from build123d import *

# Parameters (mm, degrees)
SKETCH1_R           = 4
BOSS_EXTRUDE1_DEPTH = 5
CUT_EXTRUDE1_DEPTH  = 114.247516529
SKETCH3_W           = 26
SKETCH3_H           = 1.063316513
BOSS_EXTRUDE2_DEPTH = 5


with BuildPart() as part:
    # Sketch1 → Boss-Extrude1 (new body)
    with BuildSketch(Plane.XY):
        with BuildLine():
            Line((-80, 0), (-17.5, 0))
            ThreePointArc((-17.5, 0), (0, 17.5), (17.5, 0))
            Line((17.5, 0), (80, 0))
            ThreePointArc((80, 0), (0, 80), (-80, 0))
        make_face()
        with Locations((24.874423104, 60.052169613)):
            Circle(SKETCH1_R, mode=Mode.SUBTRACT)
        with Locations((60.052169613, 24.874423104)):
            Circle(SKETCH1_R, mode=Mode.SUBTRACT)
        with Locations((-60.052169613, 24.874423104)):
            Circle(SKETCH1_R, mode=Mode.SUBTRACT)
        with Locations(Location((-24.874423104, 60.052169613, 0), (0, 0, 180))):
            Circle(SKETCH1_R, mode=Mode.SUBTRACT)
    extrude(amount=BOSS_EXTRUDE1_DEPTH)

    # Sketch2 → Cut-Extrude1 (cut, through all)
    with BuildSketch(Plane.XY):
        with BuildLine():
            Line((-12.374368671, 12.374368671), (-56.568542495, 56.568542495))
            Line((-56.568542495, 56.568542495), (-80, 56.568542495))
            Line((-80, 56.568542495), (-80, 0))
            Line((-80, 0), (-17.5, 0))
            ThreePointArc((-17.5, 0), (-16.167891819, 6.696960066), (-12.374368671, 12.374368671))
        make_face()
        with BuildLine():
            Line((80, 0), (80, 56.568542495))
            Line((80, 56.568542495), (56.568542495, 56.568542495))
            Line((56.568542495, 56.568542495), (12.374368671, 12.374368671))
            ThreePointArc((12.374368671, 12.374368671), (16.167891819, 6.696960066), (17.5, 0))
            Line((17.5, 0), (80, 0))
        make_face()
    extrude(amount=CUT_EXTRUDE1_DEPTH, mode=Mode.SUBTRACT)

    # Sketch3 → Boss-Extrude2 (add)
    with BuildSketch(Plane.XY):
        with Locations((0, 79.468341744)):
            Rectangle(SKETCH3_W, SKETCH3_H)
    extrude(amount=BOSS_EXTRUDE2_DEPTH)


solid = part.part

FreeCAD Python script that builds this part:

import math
import FreeCAD as App
import Part
import Sketcher
from FreeCAD import Vector
Q = App.Units.Quantity

doc = App.newDocument("Part")
body = doc.addObject("PartDesign::Body", "Body")

sketch1 = body.newObject("Sketcher::SketchObject", "Sketch")
sketch1.AttachmentSupport = (doc.getObject("XY_Plane"), [""])
sketch1.MapMode = "FlatFace"
sketch1.addGeometry([
    Part.LineSegment(Vector(-80, 0, 0), Vector(-17.5, 0, 0)),
    Part.ArcOfCircle(Part.Circle(Vector(0, 0, 0), Vector(0, 0, 1), 17.5), math.radians(0), math.radians(180)),
    Part.LineSegment(Vector(17.5, 0, 0), Vector(80, 0, 0)),
    Part.ArcOfCircle(Part.Circle(Vector(0, 0, 0), Vector(0, 0, 1), 80), math.radians(0), math.radians(180)),
    Part.Circle(Vector(-60.1, 24.9, 0), Vector(0, 0, 1), 4),
    Part.Circle(Vector(60.1, 24.9, 0), Vector(0, 0, 1), 4),
    Part.Circle(Vector(-24.9, 60.1, 0), Vector(0, 0, 1), 4),
    Part.Circle(Vector(24.9, 60.1, 0), Vector(0, 0, 1), 4),
], False)
sketch1.addConstraint([
    Sketcher.Constraint("Coincident", 0, 2, 1, 2),
    Sketcher.Constraint("Coincident", 1, 1, 2, 1),
    Sketcher.Constraint("Coincident", 2, 2, 3, 1),
    Sketcher.Constraint("Coincident", 3, 2, 0, 1),
    Sketcher.Constraint("Horizontal", 0),
    Sketcher.Constraint("Horizontal", 2),
    Sketcher.Constraint("Coincident", 1, 3, -1, 1),
    Sketcher.Constraint("Coincident", 3, 3, -1, 1),
    Sketcher.Constraint("Equal", 4, 5),
    Sketcher.Constraint("Equal", 5, 6),
    Sketcher.Constraint("Equal", 6, 7),
    Sketcher.Constraint("Symmetric", 4, 3, 5, 3, -2),
    Sketcher.Constraint("Symmetric", 6, 3, 7, 3, -2),
    Sketcher.Constraint("PointOnObject", 0, 2, -1),
    Sketcher.Constraint("PointOnObject", 1, 1, -1),
    Sketcher.Constraint("Diameter", 4, Q("8 mm")),
    Sketcher.Constraint("Radius", 3, Q("80 mm")),
    Sketcher.Constraint("Radius", 1, Q("17.5 mm")),
    Sketcher.Constraint("DistanceX", 4, 3, -1, 1, Q("60.05217 mm")),
    Sketcher.Constraint("DistanceY", -1, 1, 6, 3, Q("60.05217 mm")),
    Sketcher.Constraint("DistanceY", -1, 1, 4, 3, Q("24.874423 mm")),
    Sketcher.Constraint("DistanceX", 6, 3, -1, 1, Q("24.874423 mm")),
])
pad1 = body.newObject("PartDesign::Pad", "Pad")
pad1.Profile = sketch1
pad1.Length = 5

sketch2 = body.newObject("Sketcher::SketchObject", "Sketch001")
sketch2.AttachmentSupport = (doc.getObject("XY_Plane"), [""])
sketch2.MapMode = "FlatFace"
sketch2.addGeometry([
    Part.LineSegment(Vector(-12, 12, 0), Vector(-57, 57, 0)),
    Part.LineSegment(Vector(-57, 57, 0), Vector(-80, 57, 0)),
    Part.LineSegment(Vector(-80, 57, 0), Vector(-80, 0, 0)),
    Part.LineSegment(Vector(-80, 0, 0), Vector(-18, 0, 0)),
    Part.ArcOfCircle(Part.Circle(Vector(0, 0, 0), Vector(0, 0, 1), 18), math.radians(135), math.radians(180)),
    Part.LineSegment(Vector(80, 0, 0), Vector(80, 57, 0)),
    Part.LineSegment(Vector(80, 57, 0), Vector(57, 57, 0)),
    Part.LineSegment(Vector(57, 57, 0), Vector(12, 12, 0)),
    Part.ArcOfCircle(Part.Circle(Vector(0, 0, 0), Vector(0, 0, 1), 18), math.radians(0), math.radians(45)),
    Part.LineSegment(Vector(18, 0, 0), Vector(80, 0, 0)),
], False)
sketch2.addConstraint([
    Sketcher.Constraint("Coincident", 0, 2, 1, 1),
    Sketcher.Constraint("Coincident", 1, 2, 2, 1),
    Sketcher.Constraint("Coincident", 2, 2, 3, 1),
    Sketcher.Constraint("Coincident", 3, 2, 4, 2),
    Sketcher.Constraint("Coincident", 4, 1, 0, 1),
    Sketcher.Constraint("Coincident", 5, 2, 6, 1),
    Sketcher.Constraint("Coincident", 6, 2, 7, 1),
    Sketcher.Constraint("Coincident", 7, 2, 8, 2),
    Sketcher.Constraint("Coincident", 8, 1, 9, 1),
    Sketcher.Constraint("Coincident", 9, 2, 5, 1),
    Sketcher.Constraint("Horizontal", 1),
    Sketcher.Constraint("Vertical", 2),
    Sketcher.Constraint("Horizontal", 3),
    Sketcher.Constraint("Vertical", 5),
    Sketcher.Constraint("Horizontal", 6),
    Sketcher.Constraint("Horizontal", 9),
    Sketcher.Constraint("Coincident", 4, 3, -1, 1),
    Sketcher.Constraint("Coincident", 8, 3, -1, 1),
    Sketcher.Constraint("Equal", 4, 8),
    Sketcher.Constraint("Symmetric", 2, 2, 9, 2, -1, 1),
    Sketcher.Constraint("Symmetric", 0, 2, 6, 2, -2),
    Sketcher.Constraint("PointOnObject", 2, 2, -1),
    Sketcher.Constraint("Perpendicular", 0, 7),
    Sketcher.Constraint("Horizontal", 4, 1, 7, 2),
    Sketcher.Constraint("Radius", 4, Q("17.5 mm")),
    Sketcher.Constraint("DistanceX", 3, 1, 3, 2, Q("62.5 mm")),
    Sketcher.Constraint("Distance", 0, Q("62.5 mm")),
    Sketcher.Constraint("DistanceX", 1, 2, 1, 1, Q("23.431458 mm")),
])
pocket1 = body.newObject("PartDesign::Pocket", "Pocket")
pocket1.Profile = sketch2
pocket1.Type = "ThroughAll"
pocket1.Reversed = True

sketch3 = body.newObject("Sketcher::SketchObject", "Sketch002")
sketch3.AttachmentSupport = (doc.getObject("XY_Plane"), [""])
sketch3.MapMode = "FlatFace"
sketch3.addGeometry([
    Part.LineSegment(Vector(-13, 80, 0), Vector(-13, 78.9, 0)),
    Part.LineSegment(Vector(-13, 78.9, 0), Vector(13, 78.9, 0)),
    Part.LineSegment(Vector(13, 78.9, 0), Vector(13, 80, 0)),
    Part.LineSegment(Vector(13, 80, 0), Vector(-13, 80, 0)),
], False)
sketch3.addConstraint([
    Sketcher.Constraint("Coincident", 0, 2, 1, 1),
    Sketcher.Constraint("Coincident", 1, 2, 2, 1),
    Sketcher.Constraint("Coincident", 2, 2, 3, 1),
    Sketcher.Constraint("Coincident", 3, 2, 0, 1),
    Sketcher.Constraint("Vertical", 0),
    Sketcher.Constraint("Horizontal", 1),
    Sketcher.Constraint("Vertical", 2),
    Sketcher.Constraint("Horizontal", 3),
    Sketcher.Constraint("DistanceX", 1, 1, 1, 2, Q("26 mm")),
    Sketcher.Constraint("DistanceX", 0, 2, -1, 1, Q("13 mm")),
    Sketcher.Constraint("DistanceY", -1, 1, 2, 2, Q("80 mm")),
    Sketcher.Constraint("DistanceY", 0, 2, 0, 1, Q("1.063317 mm")),
])
pad2 = body.newObject("PartDesign::Pad", "Pad001")
pad2.Profile = sketch3
pad2.Length = 5

doc.recompute()
